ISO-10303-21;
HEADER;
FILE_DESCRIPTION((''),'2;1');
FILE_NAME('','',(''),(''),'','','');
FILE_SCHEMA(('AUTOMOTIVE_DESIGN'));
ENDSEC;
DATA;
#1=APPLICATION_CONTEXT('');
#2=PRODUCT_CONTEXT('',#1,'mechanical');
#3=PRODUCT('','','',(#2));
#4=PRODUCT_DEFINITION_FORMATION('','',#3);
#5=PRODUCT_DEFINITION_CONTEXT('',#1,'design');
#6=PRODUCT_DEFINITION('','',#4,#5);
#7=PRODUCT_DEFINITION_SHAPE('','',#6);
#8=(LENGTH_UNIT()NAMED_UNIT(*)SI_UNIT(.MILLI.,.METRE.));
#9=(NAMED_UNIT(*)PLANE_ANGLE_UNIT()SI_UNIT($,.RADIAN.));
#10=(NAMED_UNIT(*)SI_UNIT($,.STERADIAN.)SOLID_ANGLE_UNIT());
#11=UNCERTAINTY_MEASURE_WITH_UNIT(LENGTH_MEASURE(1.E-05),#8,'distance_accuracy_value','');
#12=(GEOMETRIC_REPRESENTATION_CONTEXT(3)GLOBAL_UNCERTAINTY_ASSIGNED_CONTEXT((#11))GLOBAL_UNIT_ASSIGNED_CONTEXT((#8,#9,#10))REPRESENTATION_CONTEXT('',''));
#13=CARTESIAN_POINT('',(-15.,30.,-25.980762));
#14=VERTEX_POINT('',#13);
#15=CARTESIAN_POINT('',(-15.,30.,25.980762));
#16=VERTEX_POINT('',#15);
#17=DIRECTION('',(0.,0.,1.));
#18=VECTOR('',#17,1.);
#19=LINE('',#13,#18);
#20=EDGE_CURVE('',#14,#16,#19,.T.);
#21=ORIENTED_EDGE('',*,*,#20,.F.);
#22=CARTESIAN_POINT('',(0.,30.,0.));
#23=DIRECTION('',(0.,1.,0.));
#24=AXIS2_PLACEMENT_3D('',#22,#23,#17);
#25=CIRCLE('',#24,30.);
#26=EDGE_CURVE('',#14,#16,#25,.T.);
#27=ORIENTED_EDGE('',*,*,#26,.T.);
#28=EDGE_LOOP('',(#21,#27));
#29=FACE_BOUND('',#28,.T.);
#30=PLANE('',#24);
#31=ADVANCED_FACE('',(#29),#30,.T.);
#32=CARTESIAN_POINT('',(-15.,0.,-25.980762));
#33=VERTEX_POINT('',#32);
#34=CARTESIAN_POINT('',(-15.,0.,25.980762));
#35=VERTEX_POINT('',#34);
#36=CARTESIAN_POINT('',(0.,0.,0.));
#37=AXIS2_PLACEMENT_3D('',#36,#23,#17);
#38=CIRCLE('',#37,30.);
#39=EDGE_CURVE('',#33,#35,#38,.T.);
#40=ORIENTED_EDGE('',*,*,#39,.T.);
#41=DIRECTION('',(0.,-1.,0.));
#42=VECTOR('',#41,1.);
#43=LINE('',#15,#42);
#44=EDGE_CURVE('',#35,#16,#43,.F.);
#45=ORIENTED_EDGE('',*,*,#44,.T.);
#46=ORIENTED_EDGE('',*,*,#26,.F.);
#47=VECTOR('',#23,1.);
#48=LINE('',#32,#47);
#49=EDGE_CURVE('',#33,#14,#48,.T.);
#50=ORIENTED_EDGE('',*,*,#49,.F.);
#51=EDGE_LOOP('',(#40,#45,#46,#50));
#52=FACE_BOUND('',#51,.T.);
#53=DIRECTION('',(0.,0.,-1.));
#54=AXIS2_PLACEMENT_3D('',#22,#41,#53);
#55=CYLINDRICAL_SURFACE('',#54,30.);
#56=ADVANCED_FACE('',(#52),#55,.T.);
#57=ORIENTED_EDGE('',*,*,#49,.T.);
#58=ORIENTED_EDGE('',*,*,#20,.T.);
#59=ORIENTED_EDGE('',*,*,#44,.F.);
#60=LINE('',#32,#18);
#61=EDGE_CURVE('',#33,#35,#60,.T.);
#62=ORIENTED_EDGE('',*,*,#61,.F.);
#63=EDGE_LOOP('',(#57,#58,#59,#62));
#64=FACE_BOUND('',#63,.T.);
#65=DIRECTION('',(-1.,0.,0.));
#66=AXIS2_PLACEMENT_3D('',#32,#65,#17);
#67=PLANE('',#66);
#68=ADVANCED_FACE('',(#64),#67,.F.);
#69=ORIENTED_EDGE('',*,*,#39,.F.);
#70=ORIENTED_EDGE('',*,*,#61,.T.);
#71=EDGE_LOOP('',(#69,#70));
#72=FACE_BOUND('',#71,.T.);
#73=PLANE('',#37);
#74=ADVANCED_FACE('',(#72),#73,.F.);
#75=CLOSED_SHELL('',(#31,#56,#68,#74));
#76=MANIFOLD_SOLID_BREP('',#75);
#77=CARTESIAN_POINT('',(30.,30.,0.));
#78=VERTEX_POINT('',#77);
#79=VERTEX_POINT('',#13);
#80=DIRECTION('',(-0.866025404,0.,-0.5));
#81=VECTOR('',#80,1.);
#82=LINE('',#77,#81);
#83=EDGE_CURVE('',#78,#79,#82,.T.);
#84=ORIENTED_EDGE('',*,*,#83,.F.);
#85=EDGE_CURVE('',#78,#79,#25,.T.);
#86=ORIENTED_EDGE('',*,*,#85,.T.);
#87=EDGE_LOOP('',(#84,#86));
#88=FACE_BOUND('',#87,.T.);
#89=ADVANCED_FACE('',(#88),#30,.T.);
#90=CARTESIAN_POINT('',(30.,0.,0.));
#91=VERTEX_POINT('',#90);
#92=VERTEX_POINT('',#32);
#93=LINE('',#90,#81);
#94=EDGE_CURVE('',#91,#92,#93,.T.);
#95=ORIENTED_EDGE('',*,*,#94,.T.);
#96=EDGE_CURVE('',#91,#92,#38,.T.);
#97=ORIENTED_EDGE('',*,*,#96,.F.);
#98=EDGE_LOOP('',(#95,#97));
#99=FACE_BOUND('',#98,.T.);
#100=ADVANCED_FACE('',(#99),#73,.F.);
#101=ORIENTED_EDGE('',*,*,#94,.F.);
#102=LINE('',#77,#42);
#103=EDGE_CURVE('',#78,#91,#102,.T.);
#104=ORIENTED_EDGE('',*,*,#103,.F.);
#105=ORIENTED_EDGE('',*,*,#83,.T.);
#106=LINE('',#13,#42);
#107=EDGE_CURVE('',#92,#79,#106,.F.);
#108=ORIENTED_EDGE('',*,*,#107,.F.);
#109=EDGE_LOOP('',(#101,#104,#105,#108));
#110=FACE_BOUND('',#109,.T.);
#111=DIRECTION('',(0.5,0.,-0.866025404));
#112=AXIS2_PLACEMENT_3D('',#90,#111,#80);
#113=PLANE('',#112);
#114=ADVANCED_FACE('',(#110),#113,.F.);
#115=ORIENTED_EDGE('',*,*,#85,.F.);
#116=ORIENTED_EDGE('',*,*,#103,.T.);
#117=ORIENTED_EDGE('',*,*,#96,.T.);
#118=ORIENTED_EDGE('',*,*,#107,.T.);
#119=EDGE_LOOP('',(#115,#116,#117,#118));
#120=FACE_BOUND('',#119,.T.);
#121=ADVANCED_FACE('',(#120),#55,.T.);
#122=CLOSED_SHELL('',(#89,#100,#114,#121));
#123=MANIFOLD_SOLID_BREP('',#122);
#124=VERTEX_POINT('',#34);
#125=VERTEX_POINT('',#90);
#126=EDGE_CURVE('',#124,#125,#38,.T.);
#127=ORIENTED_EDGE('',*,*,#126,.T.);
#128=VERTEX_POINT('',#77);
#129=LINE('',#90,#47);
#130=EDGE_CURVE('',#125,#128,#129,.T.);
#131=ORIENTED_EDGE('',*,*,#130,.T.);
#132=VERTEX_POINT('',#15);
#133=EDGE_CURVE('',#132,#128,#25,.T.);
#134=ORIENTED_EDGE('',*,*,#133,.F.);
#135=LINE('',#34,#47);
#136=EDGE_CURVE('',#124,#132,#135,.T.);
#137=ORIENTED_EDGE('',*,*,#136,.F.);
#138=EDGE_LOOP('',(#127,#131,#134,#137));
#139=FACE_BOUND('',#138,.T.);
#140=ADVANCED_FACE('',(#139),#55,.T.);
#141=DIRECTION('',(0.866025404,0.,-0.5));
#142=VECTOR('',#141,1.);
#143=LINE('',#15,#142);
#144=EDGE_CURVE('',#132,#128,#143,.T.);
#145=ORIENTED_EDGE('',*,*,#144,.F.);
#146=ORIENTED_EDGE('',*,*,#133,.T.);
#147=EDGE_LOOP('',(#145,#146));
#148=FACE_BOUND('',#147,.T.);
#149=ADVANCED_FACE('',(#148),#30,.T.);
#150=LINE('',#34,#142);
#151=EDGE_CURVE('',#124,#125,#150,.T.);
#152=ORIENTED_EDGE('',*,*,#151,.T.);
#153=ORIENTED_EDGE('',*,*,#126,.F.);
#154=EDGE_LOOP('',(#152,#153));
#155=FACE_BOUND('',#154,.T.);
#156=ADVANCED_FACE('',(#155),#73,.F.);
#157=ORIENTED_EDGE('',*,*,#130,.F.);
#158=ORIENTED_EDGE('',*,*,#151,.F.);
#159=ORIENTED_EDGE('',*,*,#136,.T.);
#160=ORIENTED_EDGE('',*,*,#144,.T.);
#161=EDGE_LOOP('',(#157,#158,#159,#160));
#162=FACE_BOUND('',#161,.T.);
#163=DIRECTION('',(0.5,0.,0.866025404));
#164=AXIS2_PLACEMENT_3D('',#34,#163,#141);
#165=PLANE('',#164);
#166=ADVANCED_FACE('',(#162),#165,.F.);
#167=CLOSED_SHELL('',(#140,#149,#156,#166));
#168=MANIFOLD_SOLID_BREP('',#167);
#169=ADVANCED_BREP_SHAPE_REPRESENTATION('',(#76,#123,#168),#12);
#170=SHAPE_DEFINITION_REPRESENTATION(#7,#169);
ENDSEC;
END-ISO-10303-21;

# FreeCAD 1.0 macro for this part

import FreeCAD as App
import Part
import Sketcher
Q = App.Units.Quantity

doc = App.newDocument("Part")
body = doc.addObject("PartDesign::Body", "Body")
body.AllowCompound = True

# Sketch on XZ plane
sketch1 = body.newObject("Sketcher::SketchObject", "Sketch")
sketch1.AttachmentSupport = (doc.getObject("XZ_Plane"), [""])
sketch1.MapMode = "FlatFace"
sketch1.addGeometry(Part.Circle(App.Vector(0, 0, 0), App.Vector(0, 0, 1), 30), False)
sketch1.addConstraint([
    Sketcher.Constraint("Coincident", 0, 3, -1, 1),
    Sketcher.Constraint("Diameter", 0, Q("60 mm")),
])
pad1 = body.newObject("PartDesign::Pad", "Pad")
pad1.Profile = sketch1
pad1.Length = 30
pad1.Reversed = True

# Sketch on XZ plane
sketch2 = body.newObject("Sketcher::SketchObject", "Sketch001")
sketch2.AttachmentSupport = (doc.getObject("XZ_Plane"), [""])
sketch2.MapMode = "FlatFace"
sketch2.AttachmentOffset = App.Placement(App.Vector(0, 0, -30), App.Rotation())
sketch2.addGeometry([
    Part.LineSegment(App.Vector(30, 0, 0), App.Vector(-15, -25.980762, 0)),
    Part.LineSegment(App.Vector(-15, -25.980762, 0), App.Vector(-15, 25.980762, 0)),
    Part.LineSegment(App.Vector(-15, 25.980762, 0), App.Vector(30, 0, 0)),
], False)
sketch2.addConstraint([
    Sketcher.Constraint("Coincident", 0, 2, 1, 1),
    Sketcher.Constraint("Coincident", 1, 2, 2, 1),
    Sketcher.Constraint("Coincident", 2, 2, 0, 1),
    Sketcher.Constraint("Vertical", 1),
    Sketcher.Constraint("PointOnObject", 2, 2, -1),
    Sketcher.Constraint("Equal", 0, 2),
    Sketcher.Constraint("Angle", 0, Q("-150 deg")),
    Sketcher.Constraint("DistanceX", 0, 2, -1, 1, Q("15 mm")),
    Sketcher.Constraint("DistanceX", -1, 1, 2, 2, Q("30 mm")),
])
pocket1 = body.newObject("PartDesign::Pocket", "Pocket")
pocket1.Profile = sketch2
pocket1.Type = "ThroughAll"
pocket1.Reversed = True

doc.recompute()
